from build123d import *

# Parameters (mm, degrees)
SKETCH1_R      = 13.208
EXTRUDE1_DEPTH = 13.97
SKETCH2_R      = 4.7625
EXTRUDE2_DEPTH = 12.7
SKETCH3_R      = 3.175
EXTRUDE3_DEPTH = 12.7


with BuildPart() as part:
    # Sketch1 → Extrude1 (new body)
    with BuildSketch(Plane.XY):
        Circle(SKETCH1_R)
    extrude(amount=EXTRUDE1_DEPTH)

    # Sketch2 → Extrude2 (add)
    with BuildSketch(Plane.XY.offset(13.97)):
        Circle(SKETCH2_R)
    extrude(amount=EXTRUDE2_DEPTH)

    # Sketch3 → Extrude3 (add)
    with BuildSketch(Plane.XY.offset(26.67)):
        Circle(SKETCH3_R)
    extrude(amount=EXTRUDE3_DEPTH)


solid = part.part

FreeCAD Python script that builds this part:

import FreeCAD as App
import Part
import Sketcher

V = App.Vector
Q = App.Units.Quantity

doc = App.newDocument("Part")
params = doc.addObject("Spreadsheet::Sheet", "Params")
for row, (alias, value) in enumerate([
    ("sketch1_diameter", "1.04 in"),
    ("pad1_length", "0.55 in"),
    ("sketch2_diameter", "0.375 in"),
    ("pad2_length", "0.5 in"),
    ("sketch3_diameter", "0.25 in"),
    ("pad3_length", "0.5 in"),
], start=1):
    params.set(f"A{row}", alias)
    params.set(f"B{row}", "=" + value)
    params.setAlias(f"B{row}", alias)

body = doc.addObject("PartDesign::Body", "Body")

sketch1 = body.newObject("Sketcher::SketchObject", "Sketch")
sketch1.AttachmentSupport = (doc.getObject("XY_Plane"), [""])
sketch1.MapMode = "FlatFace"
sketch1.addGeometry(Part.Circle(V(0, 0, 0), V(0, 0, 1), 13), False)
sketch1.addConstraint([
    Sketcher.Constraint("Coincident", 0, 3, -1, 1),
    Sketcher.Constraint("Diameter", 0, Q("1.04 in")),
])
sketch1.setExpression("Constraints[1]", "Params.sketch1_diameter")
pad1 = body.newObject("PartDesign::Pad", "Pad")
pad1.Profile = sketch1
pad1.setExpression("Length", "Params.pad1_length")

sketch2 = body.newObject("Sketcher::SketchObject", "Sketch001")
sketch2.AttachmentSupport = (doc.getObject("XY_Plane"), [""])
sketch2.MapMode = "FlatFace"
sketch2.AttachmentOffset = App.Placement(V(0, 0, 0.55 * 25.4), App.Rotation())
sketch2.addGeometry(Part.Circle(V(0, 0, 0), V(0, 0, 1), 4.8), False)
sketch2.addConstraint([
    Sketcher.Constraint("Coincident", 0, 3, -1, 1),
    Sketcher.Constraint("Diameter", 0, Q("0.375 in")),
])
sketch2.setExpression("Constraints[1]", "Params.sketch2_diameter")
pad2 = body.newObject("PartDesign::Pad", "Pad001")
pad2.Profile = sketch2
pad2.setExpression("Length", "Params.pad2_length")

sketch3 = body.newObject("Sketcher::SketchObject", "Sketch002")
sketch3.AttachmentSupport = (doc.getObject("XY_Plane"), [""])
sketch3.MapMode = "FlatFace"
sketch3.AttachmentOffset = App.Placement(V(0, 0, 1.05 * 25.4), App.Rotation())
sketch3.addGeometry(Part.Circle(V(0, 0, 0), V(0, 0, 1), 3.2), False)
sketch3.addConstraint([
    Sketcher.Constraint("Coincident", 0, 3, -1, 1),
    Sketcher.Constraint("Diameter", 0, Q("0.25 in")),
])
sketch3.setExpression("Constraints[1]", "Params.sketch3_diameter")
pad3 = body.newObject("PartDesign::Pad", "Pad002")
pad3.Profile = sketch3
pad3.setExpression("Length", "Params.pad3_length")

doc.recompute()
